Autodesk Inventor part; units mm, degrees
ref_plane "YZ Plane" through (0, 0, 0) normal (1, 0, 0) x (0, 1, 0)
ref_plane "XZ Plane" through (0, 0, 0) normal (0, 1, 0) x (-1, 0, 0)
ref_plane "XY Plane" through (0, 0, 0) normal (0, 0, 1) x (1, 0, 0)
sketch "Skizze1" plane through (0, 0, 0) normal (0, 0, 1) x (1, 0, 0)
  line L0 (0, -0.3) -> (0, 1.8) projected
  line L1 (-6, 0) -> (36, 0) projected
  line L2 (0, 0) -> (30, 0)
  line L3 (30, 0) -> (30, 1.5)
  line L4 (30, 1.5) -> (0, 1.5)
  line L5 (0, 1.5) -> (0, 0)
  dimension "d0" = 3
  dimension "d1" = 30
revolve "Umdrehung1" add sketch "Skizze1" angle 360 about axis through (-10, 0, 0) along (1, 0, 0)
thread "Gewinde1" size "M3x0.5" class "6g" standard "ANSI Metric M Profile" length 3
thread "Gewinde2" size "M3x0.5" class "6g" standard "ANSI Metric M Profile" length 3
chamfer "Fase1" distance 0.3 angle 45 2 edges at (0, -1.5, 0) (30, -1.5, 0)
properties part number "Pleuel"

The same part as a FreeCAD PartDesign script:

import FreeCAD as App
import Part
import Sketcher

V = App.Vector
Q = App.Units.Quantity


def edges_at(feature, points):
    """Names of the edges that pass closest to the given points."""
    edges = feature.Shape.Edges
    near = lambda p: min(range(len(edges)), key=lambda i: edges[i].distToShape(Part.Vertex(*p))[0])
    return sorted({f"Edge{near(p) + 1}" for p in points})

doc = App.newDocument("Part")
body = doc.addObject("PartDesign::Body", "Body")

sketch1 = body.newObject("Sketcher::SketchObject", "Sketch")
sketch1.AttachmentSupport = (doc.getObject("XY_Plane"), [""])
sketch1.MapMode = "FlatFace"
sketch1.addGeometry([
    Part.LineSegment(V(0, 1.5, 0), V(0, 0, 0)),
    Part.LineSegment(V(0, 0, 0), V(30, 0, 0)),
    Part.LineSegment(V(30, 0, 0), V(30, 1.5, 0)),
    Part.LineSegment(V(30, 1.5, 0), V(0, 1.5, 0)),
], False)
sketch1.addConstraint([
    Sketcher.Constraint("Coincident", 0, 2, 1, 1),
    Sketcher.Constraint("Coincident", 1, 2, 2, 1),
    Sketcher.Constraint("Coincident", 2, 2, 3, 1),
    Sketcher.Constraint("Coincident", 3, 2, 0, 1),
    Sketcher.Constraint("Vertical", 0),
    Sketcher.Constraint("Horizontal", 1),
    Sketcher.Constraint("Vertical", 2),
    Sketcher.Constraint("Horizontal", 3),
    Sketcher.Constraint("Coincident", 0, 2, -1, 1),
    Sketcher.Constraint("DistanceX", 1, 1, 1, 2, Q("30 mm")),
    Sketcher.Constraint("DistanceY", 0, 2, 0, 1, Q("1.5 mm")),
])
revolution = body.newObject("PartDesign::Revolution", "Revolution")
revolution.Profile = sketch1
revolution.ReferenceAxis = (sketch1, ["H_Axis"])
revolution.Angle = 360
doc.recompute()

chamfer = body.newObject("PartDesign::Chamfer", "Chamfer")
chamfer.Base = (revolution, edges_at(revolution, [(0, -1.5, 0), (30, -1.5, 0)]))
chamfer.Size = 0.3

doc.recompute()
